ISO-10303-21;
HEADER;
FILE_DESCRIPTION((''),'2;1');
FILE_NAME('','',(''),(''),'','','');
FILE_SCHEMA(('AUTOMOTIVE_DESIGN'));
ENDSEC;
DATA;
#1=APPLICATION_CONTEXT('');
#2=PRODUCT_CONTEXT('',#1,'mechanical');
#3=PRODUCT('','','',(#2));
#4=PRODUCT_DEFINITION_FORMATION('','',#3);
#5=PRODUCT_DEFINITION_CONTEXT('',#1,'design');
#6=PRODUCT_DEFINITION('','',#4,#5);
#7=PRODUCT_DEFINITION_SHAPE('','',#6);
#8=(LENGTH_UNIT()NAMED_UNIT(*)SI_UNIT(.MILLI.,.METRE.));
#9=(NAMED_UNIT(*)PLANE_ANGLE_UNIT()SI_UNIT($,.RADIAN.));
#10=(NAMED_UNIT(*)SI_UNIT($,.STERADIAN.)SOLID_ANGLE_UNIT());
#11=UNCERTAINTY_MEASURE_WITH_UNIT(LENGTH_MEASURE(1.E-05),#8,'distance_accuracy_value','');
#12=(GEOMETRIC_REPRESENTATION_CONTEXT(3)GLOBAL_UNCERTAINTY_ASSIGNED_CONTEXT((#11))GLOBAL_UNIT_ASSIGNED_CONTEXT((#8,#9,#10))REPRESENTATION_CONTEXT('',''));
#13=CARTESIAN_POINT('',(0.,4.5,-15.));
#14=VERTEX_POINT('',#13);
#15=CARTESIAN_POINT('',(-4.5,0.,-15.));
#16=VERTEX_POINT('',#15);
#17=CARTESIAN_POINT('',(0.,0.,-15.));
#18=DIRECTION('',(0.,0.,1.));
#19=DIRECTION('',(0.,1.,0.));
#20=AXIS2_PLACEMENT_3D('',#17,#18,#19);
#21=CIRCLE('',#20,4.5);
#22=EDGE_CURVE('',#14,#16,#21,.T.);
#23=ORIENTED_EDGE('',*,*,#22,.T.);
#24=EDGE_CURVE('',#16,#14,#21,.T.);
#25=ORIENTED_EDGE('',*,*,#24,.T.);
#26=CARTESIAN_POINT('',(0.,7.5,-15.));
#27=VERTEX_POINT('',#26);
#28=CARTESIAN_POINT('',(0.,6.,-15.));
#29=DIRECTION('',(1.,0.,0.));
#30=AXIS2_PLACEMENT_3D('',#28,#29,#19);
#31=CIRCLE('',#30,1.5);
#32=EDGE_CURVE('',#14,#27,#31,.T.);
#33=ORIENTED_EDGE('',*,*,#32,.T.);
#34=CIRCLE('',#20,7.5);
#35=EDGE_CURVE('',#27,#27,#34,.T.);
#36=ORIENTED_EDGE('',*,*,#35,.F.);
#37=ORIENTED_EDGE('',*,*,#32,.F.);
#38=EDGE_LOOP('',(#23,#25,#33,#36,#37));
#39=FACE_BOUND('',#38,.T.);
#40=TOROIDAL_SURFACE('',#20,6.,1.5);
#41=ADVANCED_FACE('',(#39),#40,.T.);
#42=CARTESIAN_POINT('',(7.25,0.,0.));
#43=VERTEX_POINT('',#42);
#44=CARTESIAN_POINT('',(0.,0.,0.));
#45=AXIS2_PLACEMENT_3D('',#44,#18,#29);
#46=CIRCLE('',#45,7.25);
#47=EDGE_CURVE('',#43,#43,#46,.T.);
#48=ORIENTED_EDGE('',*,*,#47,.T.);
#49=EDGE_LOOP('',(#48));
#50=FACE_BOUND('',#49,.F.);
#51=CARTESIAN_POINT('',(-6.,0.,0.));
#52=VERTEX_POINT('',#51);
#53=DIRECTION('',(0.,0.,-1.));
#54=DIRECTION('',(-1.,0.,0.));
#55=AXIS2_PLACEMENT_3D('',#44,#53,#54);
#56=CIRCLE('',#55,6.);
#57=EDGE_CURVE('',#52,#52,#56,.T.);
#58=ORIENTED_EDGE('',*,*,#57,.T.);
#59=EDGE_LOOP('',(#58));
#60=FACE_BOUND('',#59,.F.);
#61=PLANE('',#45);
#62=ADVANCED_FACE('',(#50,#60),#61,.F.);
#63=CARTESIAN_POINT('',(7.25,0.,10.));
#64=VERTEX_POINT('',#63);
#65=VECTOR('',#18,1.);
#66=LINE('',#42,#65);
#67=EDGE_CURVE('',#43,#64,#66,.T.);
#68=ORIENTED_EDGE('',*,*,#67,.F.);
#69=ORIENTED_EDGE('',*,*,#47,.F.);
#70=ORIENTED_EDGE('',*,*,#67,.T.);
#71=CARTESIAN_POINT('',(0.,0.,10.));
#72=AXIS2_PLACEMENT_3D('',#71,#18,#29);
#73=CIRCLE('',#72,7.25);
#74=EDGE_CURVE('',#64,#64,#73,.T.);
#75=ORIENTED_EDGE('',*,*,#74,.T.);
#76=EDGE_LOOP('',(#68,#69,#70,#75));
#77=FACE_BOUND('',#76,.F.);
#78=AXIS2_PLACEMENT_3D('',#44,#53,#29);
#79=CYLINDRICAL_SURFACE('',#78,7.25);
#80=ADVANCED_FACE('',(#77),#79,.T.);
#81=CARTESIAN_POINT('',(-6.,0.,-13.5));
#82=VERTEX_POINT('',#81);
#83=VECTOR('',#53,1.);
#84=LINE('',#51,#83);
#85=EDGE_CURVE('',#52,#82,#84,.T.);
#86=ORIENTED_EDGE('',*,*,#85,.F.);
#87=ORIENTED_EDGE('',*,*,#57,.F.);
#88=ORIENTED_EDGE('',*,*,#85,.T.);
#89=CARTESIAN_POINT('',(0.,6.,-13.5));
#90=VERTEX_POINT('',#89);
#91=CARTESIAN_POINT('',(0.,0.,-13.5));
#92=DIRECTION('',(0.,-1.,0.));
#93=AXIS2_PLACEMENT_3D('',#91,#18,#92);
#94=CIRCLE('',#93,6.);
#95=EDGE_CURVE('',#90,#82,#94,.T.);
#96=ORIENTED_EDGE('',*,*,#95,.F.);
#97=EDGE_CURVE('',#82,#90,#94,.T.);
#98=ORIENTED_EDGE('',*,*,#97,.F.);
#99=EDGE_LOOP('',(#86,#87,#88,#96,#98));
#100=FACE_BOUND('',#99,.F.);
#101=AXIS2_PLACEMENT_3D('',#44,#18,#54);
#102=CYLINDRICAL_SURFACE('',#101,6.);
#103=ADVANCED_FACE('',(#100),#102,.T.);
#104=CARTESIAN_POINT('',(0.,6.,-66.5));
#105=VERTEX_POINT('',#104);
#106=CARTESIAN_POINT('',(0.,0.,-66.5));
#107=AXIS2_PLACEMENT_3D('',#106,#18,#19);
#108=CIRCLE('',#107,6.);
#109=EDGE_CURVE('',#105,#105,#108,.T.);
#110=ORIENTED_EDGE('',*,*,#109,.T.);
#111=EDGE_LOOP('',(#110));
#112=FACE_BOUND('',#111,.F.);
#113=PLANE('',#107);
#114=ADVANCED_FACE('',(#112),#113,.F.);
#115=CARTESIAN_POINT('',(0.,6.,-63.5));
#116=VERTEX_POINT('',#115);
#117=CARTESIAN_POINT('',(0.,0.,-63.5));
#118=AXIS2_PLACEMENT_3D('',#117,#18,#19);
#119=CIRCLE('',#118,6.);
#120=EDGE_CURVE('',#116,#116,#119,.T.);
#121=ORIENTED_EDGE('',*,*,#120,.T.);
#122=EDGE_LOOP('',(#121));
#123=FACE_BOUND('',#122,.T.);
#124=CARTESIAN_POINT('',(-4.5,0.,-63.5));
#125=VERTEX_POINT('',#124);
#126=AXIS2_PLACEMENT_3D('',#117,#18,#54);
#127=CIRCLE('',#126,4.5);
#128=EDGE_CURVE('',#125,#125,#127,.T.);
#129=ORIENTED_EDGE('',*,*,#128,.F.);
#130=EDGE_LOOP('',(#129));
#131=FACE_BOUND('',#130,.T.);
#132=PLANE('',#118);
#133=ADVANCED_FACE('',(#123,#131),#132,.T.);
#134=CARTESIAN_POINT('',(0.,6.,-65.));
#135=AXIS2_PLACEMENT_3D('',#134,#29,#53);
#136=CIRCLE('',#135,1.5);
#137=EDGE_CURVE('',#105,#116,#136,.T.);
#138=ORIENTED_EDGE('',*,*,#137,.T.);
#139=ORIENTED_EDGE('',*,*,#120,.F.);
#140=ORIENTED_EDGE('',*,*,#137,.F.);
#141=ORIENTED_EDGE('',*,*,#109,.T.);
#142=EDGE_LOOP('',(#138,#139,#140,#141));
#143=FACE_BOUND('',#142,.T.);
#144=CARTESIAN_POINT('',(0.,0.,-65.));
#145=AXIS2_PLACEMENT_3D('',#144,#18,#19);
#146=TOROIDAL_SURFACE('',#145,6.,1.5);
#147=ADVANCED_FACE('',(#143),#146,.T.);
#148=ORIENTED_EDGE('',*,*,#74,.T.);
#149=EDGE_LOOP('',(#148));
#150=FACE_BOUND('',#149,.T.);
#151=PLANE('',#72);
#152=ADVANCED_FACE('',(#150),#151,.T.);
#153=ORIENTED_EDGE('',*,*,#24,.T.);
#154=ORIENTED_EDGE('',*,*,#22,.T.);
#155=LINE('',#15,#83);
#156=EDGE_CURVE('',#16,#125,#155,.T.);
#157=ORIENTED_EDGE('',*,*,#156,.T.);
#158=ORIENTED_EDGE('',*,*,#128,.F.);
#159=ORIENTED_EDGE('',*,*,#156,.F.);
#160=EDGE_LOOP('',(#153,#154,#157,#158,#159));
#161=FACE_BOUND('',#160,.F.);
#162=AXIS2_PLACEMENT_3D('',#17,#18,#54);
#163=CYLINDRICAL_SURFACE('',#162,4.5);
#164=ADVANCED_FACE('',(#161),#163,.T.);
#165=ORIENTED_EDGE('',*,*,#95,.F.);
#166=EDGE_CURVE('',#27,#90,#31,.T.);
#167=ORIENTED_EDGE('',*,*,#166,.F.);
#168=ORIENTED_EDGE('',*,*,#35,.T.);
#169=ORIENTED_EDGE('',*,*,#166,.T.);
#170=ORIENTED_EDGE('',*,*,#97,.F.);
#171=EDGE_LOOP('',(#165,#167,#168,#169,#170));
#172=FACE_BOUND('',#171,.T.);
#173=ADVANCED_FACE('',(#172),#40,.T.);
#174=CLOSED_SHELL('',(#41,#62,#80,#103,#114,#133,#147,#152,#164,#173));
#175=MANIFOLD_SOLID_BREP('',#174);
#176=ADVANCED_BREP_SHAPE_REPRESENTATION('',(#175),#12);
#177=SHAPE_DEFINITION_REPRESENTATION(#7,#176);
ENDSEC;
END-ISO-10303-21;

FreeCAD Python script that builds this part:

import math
import FreeCAD as App
import Part
import Sketcher

V = App.Vector

doc = App.newDocument("Part")
body = doc.addObject("PartDesign::Body", "Body")

sketch1 = body.newObject("Sketcher::SketchObject", "Sketch")
sketch1.AttachmentSupport = (doc.getObject("XY_Plane"), [""])
sketch1.MapMode = "FlatFace"
sketch1.addGeometry(Part.Circle(V(0, 0, 0), V(0, 0, 1), 7), False)
sketch1.addConstraint(Sketcher.Constraint("Coincident", 0, 3, -1, 1))
sketch1.addConstraint(Sketcher.Constraint("Diameter", 0, 14.5))
pad1 = body.newObject("PartDesign::Pad", "Pad")
pad1.Profile = sketch1
pad1.Length = 10

sketch2 = body.newObject("Sketcher::SketchObject", "Sketch001")
sketch2.AttachmentSupport = (doc.getObject("XY_Plane"), [""])
sketch2.MapMode = "FlatFace"
sketch2.addGeometry(Part.Circle(V(0, 0, 0), V(0, 0, 1), 6), False)
sketch2.addConstraint(Sketcher.Constraint("Coincident", 0, 3, -1, 1))
sketch2.addConstraint(Sketcher.Constraint("Diameter", 0, 12.0))
pad2 = body.newObject("PartDesign::Pad", "Pad001")
pad2.Profile = sketch2
pad2.Length = 15
pad2.Reversed = True

sketch3 = body.newObject("Sketcher::SketchObject", "Sketch002")
sketch3.AttachmentSupport = (doc.getObject("YZ_Plane"), [""])
sketch3.MapMode = "FlatFace"
sketch3.addGeometry(Part.Circle(V(6, -15, 0), V(0, 0, 1), 1.5), False)
sketch3.addConstraint(Sketcher.Constraint("Diameter", 0, 3.0))
sketch3.addConstraint(Sketcher.Constraint("DistanceX", -1, 1, 0, 3, 6.0))
sketch3.addConstraint(Sketcher.Constraint("DistanceY", 0, 3, -1, 1, 15.0))
revolution = body.newObject("PartDesign::Revolution", "Revolution")
revolution.Profile = sketch3
revolution.ReferenceAxis = (sketch3, ["V_Axis"])
revolution.Angle = 360

sketch4 = body.newObject("Sketcher::SketchObject", "Sketch003")
sketch4.AttachmentSupport = (doc.getObject("XY_Plane"), [""])
sketch4.MapMode = "FlatFace"
sketch4.AttachmentOffset = App.Placement(V(0, 0, -15), App.Rotation())
sketch4.addGeometry(Part.Circle(V(0, 0, 0), V(0, 0, 1), 4.5), False)
sketch4.addConstraint(Sketcher.Constraint("Coincident", 0, 3, -1, 1))
sketch4.addConstraint(Sketcher.Constraint("Diameter", 0, 9.0))
pad3 = body.newObject("PartDesign::Pad", "Pad002")
pad3.Profile = sketch4
pad3.Length = 50
pad3.Reversed = True

sketch5 = body.newObject("Sketcher::SketchObject", "Sketch004")
sketch5.AttachmentSupport = (doc.getObject("YZ_Plane"), [""])
sketch5.MapMode = "FlatFace"
sketch5.addGeometry(Part.LineSegment(V(0, -66.5, 0), V(6, -66.5, 0)), False)
sketch5.addGeometry(Part.ArcOfCircle(Part.Circle(V(6, -65, 0), V(0, 0, 1), 1.5), math.radians(-90), math.radians(90)), False)
sketch5.addGeometry(Part.LineSegment(V(6, -63.5, 0), V(0, -63.5, 0)), False)
sketch5.addGeometry(Part.LineSegment(V(0, -63.5, 0), V(0, -66.5, 0)), False)
sketch5.addConstraint(Sketcher.Constraint("Tangent", 0, 2, 1, 1))
sketch5.addConstraint(Sketcher.Constraint("Tangent", 1, 2, 2, 1))
sketch5.addConstraint(Sketcher.Constraint("Coincident", 2, 2, 3, 1))
sketch5.addConstraint(Sketcher.Constraint("Coincident", 3, 2, 0, 1))
sketch5.addConstraint(Sketcher.Constraint("Horizontal", 0))
sketch5.addConstraint(Sketcher.Constraint("Horizontal", 2))
sketch5.addConstraint(Sketcher.Constraint("Vertical", 3))
sketch5.addConstraint(Sketcher.Constraint("PointOnObject", 2, 2, -2))
sketch5.addConstraint(Sketcher.Constraint("Radius", 1, 1.5))
sketch5.addConstraint(Sketcher.Constraint("DistanceX", 0, 1, 0, 2, 6.0))
sketch5.addConstraint(Sketcher.Constraint("DistanceY", 1, 3, -1, 1, 65.0))
revolution2 = body.newObject("PartDesign::Revolution", "Revolution001")
revolution2.Profile = sketch5
revolution2.ReferenceAxis = (sketch5, ["V_Axis"])
revolution2.Angle = 360

doc.recompute()
